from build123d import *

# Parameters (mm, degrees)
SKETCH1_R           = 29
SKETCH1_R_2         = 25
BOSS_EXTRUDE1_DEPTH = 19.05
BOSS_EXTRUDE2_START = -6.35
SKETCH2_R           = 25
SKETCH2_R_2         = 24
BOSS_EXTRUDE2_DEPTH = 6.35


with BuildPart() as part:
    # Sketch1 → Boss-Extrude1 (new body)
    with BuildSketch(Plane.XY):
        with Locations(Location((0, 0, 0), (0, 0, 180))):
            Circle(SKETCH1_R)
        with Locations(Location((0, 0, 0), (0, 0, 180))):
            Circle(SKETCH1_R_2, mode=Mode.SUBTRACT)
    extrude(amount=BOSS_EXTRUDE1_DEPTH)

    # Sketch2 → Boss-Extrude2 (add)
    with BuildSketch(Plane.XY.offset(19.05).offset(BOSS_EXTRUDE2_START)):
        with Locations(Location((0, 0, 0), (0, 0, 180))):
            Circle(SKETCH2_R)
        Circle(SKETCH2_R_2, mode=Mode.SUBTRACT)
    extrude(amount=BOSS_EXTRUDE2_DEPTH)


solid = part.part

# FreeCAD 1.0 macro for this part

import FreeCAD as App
import Part
import Sketcher
Q = App.Units.Quantity

doc = App.newDocument("Part")
params = doc.addObject("Spreadsheet::Sheet", "Params")
for row, (alias, value) in enumerate([
    ("sketch1_diameter", "58 mm"),
    ("sketch1_diameter2", "50 mm"),
    ("pad1_length", "19.05 mm"),
    ("sketch2_diameter", "50 mm"),
    ("sketch2_diameter2", "48 mm"),
    ("pad2_length", "6.35 mm"),
], start=1):
    params.set(f"A{row}", alias)
    params.set(f"B{row}", "=" + value)
    params.setAlias(f"B{row}", alias)

body = doc.addObject("PartDesign::Body", "Body")

# Sketch on XY plane
sketch1 = doc.addObject("Sketcher::SketchObject", "Sketch")
body.addObject(sketch1)
sketch1.AttachmentSupport = (doc.XY_Plane, [""])
sketch1.MapMode = "FlatFace"
sketch1.addGeometry(Part.Circle(App.Vector(0, 0, 0), App.Vector(0, 0, 1), 29), False)
sketch1.addGeometry(Part.Circle(App.Vector(0, 0, 0), App.Vector(0, 0, 1), 25), False)
sketch1.addConstraint(Sketcher.Constraint("Coincident", 0, 3, -1, 1))
sketch1.addConstraint(Sketcher.Constraint("Coincident", 1, 3, -1, 1))
sketch1.addConstraint(Sketcher.Constraint("Diameter", 0, Q("58 mm")))
sketch1.addConstraint(Sketcher.Constraint("Diameter", 1, Q("50 mm")))
sketch1.setExpression("Constraints[2]", "Params.sketch1_diameter")
sketch1.setExpression("Constraints[3]", "Params.sketch1_diameter2")
pad1 = doc.addObject("PartDesign::Pad", "Pad")
body.addObject(pad1)
pad1.Profile = sketch1
pad1.setExpression("Length", "Params.pad1_length")

# Sketch on XY plane
sketch2 = doc.addObject("Sketcher::SketchObject", "Sketch001")
body.addObject(sketch2)
sketch2.AttachmentSupport = (doc.XY_Plane, [""])
sketch2.MapMode = "FlatFace"
sketch2.AttachmentOffset = App.Placement(App.Vector(0, 0, 12.7), App.Rotation())
sketch2.addGeometry(Part.Circle(App.Vector(0, 0, 0), App.Vector(0, 0, 1), 25), False)
sketch2.addGeometry(Part.Circle(App.Vector(0, 0, 0), App.Vector(0, 0, 1), 24), False)
sketch2.addConstraint(Sketcher.Constraint("Coincident", 0, 3, -1, 1))
sketch2.addConstraint(Sketcher.Constraint("Coincident", 1, 3, -1, 1))
sketch2.addConstraint(Sketcher.Constraint("Diameter", 0, Q("50 mm")))
sketch2.addConstraint(Sketcher.Constraint("Diameter", 1, Q("48 mm")))
sketch2.setExpression("Constraints[2]", "Params.sketch2_diameter")
sketch2.setExpression("Constraints[3]", "Params.sketch2_diameter2")
pad2 = doc.addObject("PartDesign::Pad", "Pad001")
body.addObject(pad2)
pad2.Profile = sketch2
pad2.setExpression("Length", "Params.pad2_length")

doc.recompute()
